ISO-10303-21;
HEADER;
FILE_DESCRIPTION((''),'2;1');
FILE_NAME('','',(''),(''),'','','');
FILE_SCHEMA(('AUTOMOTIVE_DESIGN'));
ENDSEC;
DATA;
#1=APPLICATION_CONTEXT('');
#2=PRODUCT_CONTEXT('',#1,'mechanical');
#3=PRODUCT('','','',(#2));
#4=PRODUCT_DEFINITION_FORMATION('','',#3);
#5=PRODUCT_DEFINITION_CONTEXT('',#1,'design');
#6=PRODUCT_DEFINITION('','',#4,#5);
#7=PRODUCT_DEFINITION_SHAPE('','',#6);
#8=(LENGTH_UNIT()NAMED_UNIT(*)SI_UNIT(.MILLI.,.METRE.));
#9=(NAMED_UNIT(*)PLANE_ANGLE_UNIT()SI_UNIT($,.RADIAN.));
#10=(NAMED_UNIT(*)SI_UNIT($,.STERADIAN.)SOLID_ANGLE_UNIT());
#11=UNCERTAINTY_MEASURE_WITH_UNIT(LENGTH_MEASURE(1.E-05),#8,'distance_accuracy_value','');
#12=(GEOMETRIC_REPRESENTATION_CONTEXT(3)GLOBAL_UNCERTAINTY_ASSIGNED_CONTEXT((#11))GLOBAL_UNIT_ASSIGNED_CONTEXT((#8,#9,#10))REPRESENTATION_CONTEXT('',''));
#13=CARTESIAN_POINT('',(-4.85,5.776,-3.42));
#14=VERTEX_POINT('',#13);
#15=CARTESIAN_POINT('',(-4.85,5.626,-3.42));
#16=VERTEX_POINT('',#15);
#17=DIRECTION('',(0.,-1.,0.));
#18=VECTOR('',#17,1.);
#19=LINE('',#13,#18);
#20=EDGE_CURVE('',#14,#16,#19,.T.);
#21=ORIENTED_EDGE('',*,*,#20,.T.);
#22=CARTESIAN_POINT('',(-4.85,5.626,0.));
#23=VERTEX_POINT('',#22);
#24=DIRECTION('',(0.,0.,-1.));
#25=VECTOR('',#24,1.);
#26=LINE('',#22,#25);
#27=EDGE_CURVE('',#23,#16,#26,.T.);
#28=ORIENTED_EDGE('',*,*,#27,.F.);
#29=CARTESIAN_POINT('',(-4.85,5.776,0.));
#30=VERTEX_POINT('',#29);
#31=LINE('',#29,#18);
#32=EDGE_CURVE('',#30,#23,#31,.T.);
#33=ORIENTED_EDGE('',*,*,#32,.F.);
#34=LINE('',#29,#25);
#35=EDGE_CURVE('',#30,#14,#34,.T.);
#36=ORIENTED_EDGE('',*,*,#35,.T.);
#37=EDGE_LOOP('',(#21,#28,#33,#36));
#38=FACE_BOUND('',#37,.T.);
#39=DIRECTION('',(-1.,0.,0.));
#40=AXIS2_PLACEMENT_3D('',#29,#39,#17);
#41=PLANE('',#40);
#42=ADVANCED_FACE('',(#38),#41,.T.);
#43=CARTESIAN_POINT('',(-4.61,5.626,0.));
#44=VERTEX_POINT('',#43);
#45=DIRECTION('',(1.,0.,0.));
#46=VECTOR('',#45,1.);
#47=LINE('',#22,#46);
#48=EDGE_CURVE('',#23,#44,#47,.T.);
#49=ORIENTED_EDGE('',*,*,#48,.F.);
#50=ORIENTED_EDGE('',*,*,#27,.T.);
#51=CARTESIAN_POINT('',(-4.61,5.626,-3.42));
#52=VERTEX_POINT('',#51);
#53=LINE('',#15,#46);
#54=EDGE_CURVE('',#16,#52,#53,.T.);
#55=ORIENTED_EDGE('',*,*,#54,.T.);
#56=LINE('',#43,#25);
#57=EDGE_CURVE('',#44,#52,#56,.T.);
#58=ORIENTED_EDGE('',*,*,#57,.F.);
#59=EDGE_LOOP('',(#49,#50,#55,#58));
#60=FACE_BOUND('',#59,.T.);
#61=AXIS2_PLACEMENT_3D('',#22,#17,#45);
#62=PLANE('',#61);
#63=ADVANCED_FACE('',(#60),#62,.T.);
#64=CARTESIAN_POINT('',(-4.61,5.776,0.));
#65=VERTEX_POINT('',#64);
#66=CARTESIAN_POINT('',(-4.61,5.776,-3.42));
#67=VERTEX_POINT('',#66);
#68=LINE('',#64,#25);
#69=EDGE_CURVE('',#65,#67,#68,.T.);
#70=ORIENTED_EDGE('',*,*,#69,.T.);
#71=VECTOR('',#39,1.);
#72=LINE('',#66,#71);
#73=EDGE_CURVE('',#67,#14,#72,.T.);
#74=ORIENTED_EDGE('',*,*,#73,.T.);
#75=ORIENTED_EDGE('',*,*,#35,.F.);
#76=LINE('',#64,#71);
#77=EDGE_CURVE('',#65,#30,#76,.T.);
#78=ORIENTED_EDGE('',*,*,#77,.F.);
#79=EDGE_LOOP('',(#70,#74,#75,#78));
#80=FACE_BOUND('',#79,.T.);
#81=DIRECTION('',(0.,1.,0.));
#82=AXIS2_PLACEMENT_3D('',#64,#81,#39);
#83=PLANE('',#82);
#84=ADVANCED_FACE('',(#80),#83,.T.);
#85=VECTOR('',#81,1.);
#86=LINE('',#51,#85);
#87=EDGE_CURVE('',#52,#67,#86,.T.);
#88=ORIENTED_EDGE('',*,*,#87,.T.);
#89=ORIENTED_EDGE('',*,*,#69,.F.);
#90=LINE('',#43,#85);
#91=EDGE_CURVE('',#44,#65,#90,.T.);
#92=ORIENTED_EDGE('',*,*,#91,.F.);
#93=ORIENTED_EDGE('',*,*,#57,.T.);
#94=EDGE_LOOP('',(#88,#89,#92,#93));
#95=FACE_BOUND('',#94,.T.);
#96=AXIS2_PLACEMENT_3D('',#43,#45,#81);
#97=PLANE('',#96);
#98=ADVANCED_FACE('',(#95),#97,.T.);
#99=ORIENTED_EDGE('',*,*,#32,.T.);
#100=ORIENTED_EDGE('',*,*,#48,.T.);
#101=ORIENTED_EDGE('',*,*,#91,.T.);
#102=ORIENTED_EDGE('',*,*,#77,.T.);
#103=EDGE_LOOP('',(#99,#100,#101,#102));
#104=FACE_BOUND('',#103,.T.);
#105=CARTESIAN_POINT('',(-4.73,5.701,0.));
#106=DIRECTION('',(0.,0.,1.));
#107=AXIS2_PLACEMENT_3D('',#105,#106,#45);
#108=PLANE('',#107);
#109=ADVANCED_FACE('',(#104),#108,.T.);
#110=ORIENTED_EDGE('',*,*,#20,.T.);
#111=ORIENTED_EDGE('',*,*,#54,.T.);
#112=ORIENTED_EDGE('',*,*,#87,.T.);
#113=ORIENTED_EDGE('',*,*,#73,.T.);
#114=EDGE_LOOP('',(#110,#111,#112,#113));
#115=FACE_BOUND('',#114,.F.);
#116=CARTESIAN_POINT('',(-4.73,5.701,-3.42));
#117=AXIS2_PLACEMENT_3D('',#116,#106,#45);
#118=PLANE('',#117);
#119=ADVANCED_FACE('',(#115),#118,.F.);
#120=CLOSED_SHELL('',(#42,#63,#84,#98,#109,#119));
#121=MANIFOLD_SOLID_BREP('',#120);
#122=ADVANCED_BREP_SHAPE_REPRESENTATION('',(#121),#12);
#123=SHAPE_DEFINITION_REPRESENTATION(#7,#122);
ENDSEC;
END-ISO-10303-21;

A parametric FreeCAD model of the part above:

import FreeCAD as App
import Part
import Sketcher


def add_polygon(sketch, points):
    """Adds a closed chain of lines whose ends are joined by coincident constraints."""
    first, n = sketch.GeometryCount, len(points)
    for a, b in zip(points, points[1:] + points[:1]):
        sketch.addGeometry(Part.LineSegment(App.Vector(*a, 0), App.Vector(*b, 0)), False)
    for i in range(n):
        sketch.addConstraint(Sketcher.Constraint("Coincident", first + i, 2, first + (i + 1) % n, 1))

doc = App.newDocument("Part")
params = doc.addObject("Spreadsheet::Sheet", "Params")
for row, (alias, value) in enumerate([
    ("sketch1_width", "0.24 mm"),
    ("sketch1_height", "0.15 mm"),
    ("pad1_length", "3.42 mm"),
], start=1):
    params.set(f"A{row}", alias)
    params.set(f"B{row}", "=" + value)
    params.setAlias(f"B{row}", alias)

body = doc.addObject("PartDesign::Body", "Body")

# Sketch on XY plane
sketch1 = body.newObject("Sketcher::SketchObject", "Sketch")
sketch1.AttachmentSupport = (doc.getObject("XY_Plane"), [""])
sketch1.MapMode = "FlatFace"
add_polygon(sketch1, [(-4.61, 5.78), (-4.85, 5.78), (-4.85, 5.63), (-4.61, 5.63)])  # lines 0-3
sketch1.addConstraint([
    Sketcher.Constraint("Horizontal", 0),
    Sketcher.Constraint("Vertical", 1),
    Sketcher.Constraint("Horizontal", 2),
    Sketcher.Constraint("Vertical", 3),
    Sketcher.Constraint("DistanceX", 0, 2, -1, 1, 4.85),
    Sketcher.Constraint("DistanceX", 0, 2, 0, 1, 0.24),
    Sketcher.Constraint("DistanceY", 1, 2, 1, 1, 0.15),
    Sketcher.Constraint("DistanceY", -1, 1, 0, 2, 5.776),
])
sketch1.setExpression("Constraints[9]", "Params.sketch1_width")
sketch1.setExpression("Constraints[10]", "Params.sketch1_height")
pad1 = body.newObject("PartDesign::Pad", "Pad")
pad1.Profile = sketch1
pad1.setExpression("Length", "Params.pad1_length")
pad1.Reversed = True

doc.recompute()
